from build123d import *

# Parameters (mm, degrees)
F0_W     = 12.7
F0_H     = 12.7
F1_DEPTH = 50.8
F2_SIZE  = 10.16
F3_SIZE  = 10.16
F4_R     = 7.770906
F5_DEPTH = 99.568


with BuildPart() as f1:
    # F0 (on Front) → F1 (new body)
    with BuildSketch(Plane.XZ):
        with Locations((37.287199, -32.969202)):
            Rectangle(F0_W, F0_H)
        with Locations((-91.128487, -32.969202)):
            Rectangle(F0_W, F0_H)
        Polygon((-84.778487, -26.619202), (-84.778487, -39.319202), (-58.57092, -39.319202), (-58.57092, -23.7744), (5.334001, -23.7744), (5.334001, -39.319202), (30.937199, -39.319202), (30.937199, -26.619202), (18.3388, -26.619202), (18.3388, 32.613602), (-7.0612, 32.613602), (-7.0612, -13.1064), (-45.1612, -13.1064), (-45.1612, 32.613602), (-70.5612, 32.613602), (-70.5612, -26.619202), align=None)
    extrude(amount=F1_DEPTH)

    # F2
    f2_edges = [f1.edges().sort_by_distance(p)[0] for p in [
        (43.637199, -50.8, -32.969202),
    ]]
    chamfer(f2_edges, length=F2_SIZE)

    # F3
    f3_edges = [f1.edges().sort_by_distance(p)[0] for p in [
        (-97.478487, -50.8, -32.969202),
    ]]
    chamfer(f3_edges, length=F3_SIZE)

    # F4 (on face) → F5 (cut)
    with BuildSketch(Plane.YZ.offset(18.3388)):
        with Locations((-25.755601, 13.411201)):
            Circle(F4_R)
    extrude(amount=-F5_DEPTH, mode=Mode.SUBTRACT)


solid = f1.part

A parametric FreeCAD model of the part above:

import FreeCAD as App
import Part
import Sketcher
from FreeCAD import Vector
Q = App.Units.Quantity


def edges_at(feature, points):
    """Names of the edges that pass closest to the given points."""
    edges = feature.Shape.Edges
    near = lambda p: min(range(len(edges)), key=lambda i: edges[i].distToShape(Part.Vertex(*p))[0])
    return sorted({f"Edge{near(p) + 1}" for p in points})


def add_polygon(sketch, points):
    """Adds a closed chain of lines whose ends are joined by coincident constraints."""
    first, n = sketch.GeometryCount, len(points)
    for a, b in zip(points, points[1:] + points[:1]):
        sketch.addGeometry(Part.LineSegment(App.Vector(*a, 0), App.Vector(*b, 0)), False)
    for i in range(n):
        sketch.addConstraint(Sketcher.Constraint("Coincident", first + i, 2, first + (i + 1) % n, 1))

doc = App.newDocument("Part")
params = doc.addObject("Spreadsheet::Sheet", "Params")
for row, (alias, value) in enumerate([
    ("sketch1_width", "1 in"),
    ("sketch1_width2", "1.5 in"),
    ("sketch1_height", "0.5 in"),
    ("sketch1_height2", "1.8000001 in"),
    ("sketch1_width3", "0.996 in"),
    ("pad1_length", "2 in"),
    ("chamfer_size", "0.4 in"),
    ("chamfer2_size", "0.4 in"),
    ("pocket1_length", "3.92 in"),
], start=1):
    params.set(f"A{row}", alias)
    params.set(f"B{row}", "=" + value)
    params.setAlias(f"B{row}", alias)

body = doc.addObject("PartDesign::Body", "Body")

# Sketch on XZ plane
sketch1 = doc.addObject("Sketcher::SketchObject", "Sketch")
body.addObject(sketch1)
sketch1.AttachmentSupport = (doc.XZ_Plane, [""])
sketch1.MapMode = "FlatFace"
add_polygon(sketch1, [(44, -39), (44, -27), (18, -27), (18, 33), (-7, 33), (-7, -13), (-45, -13), (-45, 33), (-71, 33), (-71, -27), (-97, -27), (-97, -39), (-59, -39), (-59, -24), (5, -24), (5, -39)])  # lines 0-15
sketch1.addConstraint(Sketcher.Constraint("Vertical", 0))
sketch1.addConstraint(Sketcher.Constraint("Horizontal", 1))
sketch1.addConstraint(Sketcher.Constraint("Vertical", 2))
sketch1.addConstraint(Sketcher.Constraint("Horizontal", 3))
sketch1.addConstraint(Sketcher.Constraint("Vertical", 4))
sketch1.addConstraint(Sketcher.Constraint("Horizontal", 5))
sketch1.addConstraint(Sketcher.Constraint("Vertical", 6))
sketch1.addConstraint(Sketcher.Constraint("Horizontal", 7))
sketch1.addConstraint(Sketcher.Constraint("Vertical", 8))
sketch1.addConstraint(Sketcher.Constraint("Horizontal", 9))
sketch1.addConstraint(Sketcher.Constraint("Vertical", 10))
sketch1.addConstraint(Sketcher.Constraint("Horizontal", 11))
sketch1.addConstraint(Sketcher.Constraint("Vertical", 12))
sketch1.addConstraint(Sketcher.Constraint("Horizontal", 13))
sketch1.addConstraint(Sketcher.Constraint("Vertical", 14))
sketch1.addConstraint(Sketcher.Constraint("Horizontal", 15))
sketch1.addConstraint(Sketcher.Constraint("Horizontal", 3, 2, 6, 2))
sketch1.addConstraint(Sketcher.Constraint("Horizontal", 1, 2, 8, 2))
sketch1.addConstraint(Sketcher.Constraint("Horizontal", 11, 2, 14, 2))
sketch1.addConstraint(Sketcher.Constraint("Equal", 3, 7))
sketch1.addConstraint(Sketcher.Constraint("DistanceX", 3, 2, 3, 1, Q("1 in")))
sketch1.addConstraint(Sketcher.Constraint("DistanceX", 5, 2, 5, 1, Q("1.5 in")))
sketch1.addConstraint(Sketcher.Constraint("DistanceY", 0, 1, 0, 2, Q("0.5 in")))
sketch1.addConstraint(Sketcher.Constraint("DistanceY", 4, 2, 4, 1, Q("1.8000001 in")))
sketch1.addConstraint(Sketcher.Constraint("DistanceX", 1, 2, 1, 1, Q("0.996 in")))
sketch1.addConstraint(Sketcher.Constraint("DistanceX", 15, 1, 15, 2, Q("1.5079999 in")))
sketch1.addConstraint(Sketcher.Constraint("DistanceY", 2, 1, 2, 2, Q("2.3320002 in")))
sketch1.addConstraint(Sketcher.Constraint("DistanceY", 12, 1, 12, 2, Q("0.6120001 in")))
sketch1.addConstraint(Sketcher.Constraint("DistanceX", -1, 1, 13, 2, Q("0.21 in")))
sketch1.addConstraint(Sketcher.Constraint("DistanceY", 0, 2, -1, 1, Q("1.0480001 in")))
sketch1.addConstraint(Sketcher.Constraint("DistanceX", 13, 1, 13, 2, Q("63.904921 mm")))
sketch1.addConstraint(Sketcher.Constraint("DistanceX", 9, 2, 9, 1, Q("26.917287 mm")))
sketch1.setExpression("Constraints[36]", "Params.sketch1_width")
sketch1.setExpression("Constraints[37]", "Params.sketch1_width2")
sketch1.setExpression("Constraints[38]", "Params.sketch1_height")
sketch1.setExpression("Constraints[39]", "Params.sketch1_height2")
sketch1.setExpression("Constraints[40]", "Params.sketch1_width3")
pad1 = doc.addObject("PartDesign::Pad", "Pad")
body.addObject(pad1)
pad1.Profile = sketch1
pad1.setExpression("Length", "Params.pad1_length")
doc.recompute()

chamfer = doc.addObject("PartDesign::Chamfer", "Chamfer")
body.addObject(chamfer)
chamfer.Base = (pad1, edges_at(pad1, [(43.637, -50.8, -32.969)]))
chamfer.setExpression("Size", "Params.chamfer_size")
doc.recompute()

chamfer2 = doc.addObject("PartDesign::Chamfer", "Chamfer001")
body.addObject(chamfer2)
chamfer2.Base = (chamfer, edges_at(chamfer, [(-97.478, -50.8, -32.969)]))
chamfer2.setExpression("Size", "Params.chamfer2_size")

# Sketch on YZ plane
sketch2 = doc.addObject("Sketcher::SketchObject", "Sketch001")
body.addObject(sketch2)
sketch2.AttachmentSupport = (doc.YZ_Plane, [""])
sketch2.MapMode = "FlatFace"
sketch2.AttachmentOffset = App.Placement(Vector(0, 0, 0.722 * 25.4), App.Rotation())
sketch2.addGeometry(Part.Circle(Vector(-26, 13, 0), Vector(0, 0, 1), 8), False)
sketch2.addConstraint(Sketcher.Constraint("DistanceX", 0, 3, -1, 1, Q("1.014 in")))
sketch2.addConstraint(Sketcher.Constraint("DistanceY", -1, 1, 0, 3, Q("0.528 in")))
sketch2.addConstraint(Sketcher.Constraint("Diameter", 0, Q("15.541812 mm")))
pocket1 = doc.addObject("PartDesign::Pocket", "Pocket")
body.addObject(pocket1)
pocket1.Profile = sketch2
pocket1.setExpression("Length", "Params.pocket1_length")

doc.recompute()
